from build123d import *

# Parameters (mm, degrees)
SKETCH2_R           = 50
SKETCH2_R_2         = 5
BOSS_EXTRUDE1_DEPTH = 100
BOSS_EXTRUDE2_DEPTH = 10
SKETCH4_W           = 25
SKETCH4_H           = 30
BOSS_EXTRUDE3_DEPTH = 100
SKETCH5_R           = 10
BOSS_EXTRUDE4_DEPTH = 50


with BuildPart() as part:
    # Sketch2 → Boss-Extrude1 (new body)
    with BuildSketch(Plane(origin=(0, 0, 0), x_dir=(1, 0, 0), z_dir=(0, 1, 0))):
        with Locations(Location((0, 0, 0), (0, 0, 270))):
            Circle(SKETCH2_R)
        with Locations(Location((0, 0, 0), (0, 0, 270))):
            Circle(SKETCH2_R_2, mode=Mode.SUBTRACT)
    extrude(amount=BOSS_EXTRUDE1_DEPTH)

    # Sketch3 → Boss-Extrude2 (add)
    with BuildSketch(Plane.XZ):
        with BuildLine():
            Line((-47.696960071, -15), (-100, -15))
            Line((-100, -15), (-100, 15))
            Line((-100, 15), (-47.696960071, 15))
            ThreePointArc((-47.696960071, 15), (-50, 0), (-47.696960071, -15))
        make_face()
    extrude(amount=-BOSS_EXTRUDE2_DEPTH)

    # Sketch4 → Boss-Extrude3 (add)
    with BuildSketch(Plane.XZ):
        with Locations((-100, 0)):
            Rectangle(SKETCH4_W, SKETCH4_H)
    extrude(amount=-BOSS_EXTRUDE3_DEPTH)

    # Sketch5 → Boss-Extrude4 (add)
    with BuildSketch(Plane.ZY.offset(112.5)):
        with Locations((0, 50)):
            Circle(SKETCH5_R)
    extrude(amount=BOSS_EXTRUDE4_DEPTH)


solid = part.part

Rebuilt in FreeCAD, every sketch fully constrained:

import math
import FreeCAD as App
import Part
import Sketcher
from FreeCAD import Vector
Q = App.Units.Quantity

doc = App.newDocument("Part")
body = doc.addObject("PartDesign::Body", "Body")

sketch1 = body.newObject("Sketcher::SketchObject", "Sketch")
sketch1.AttachmentSupport = (doc.getObject("XZ_Plane"), [""])
sketch1.MapMode = "FlatFace"
sketch1.addGeometry([
    Part.Circle(Vector(0, 0, 0), Vector(0, 0, 1), 50),
    Part.Circle(Vector(0, 0, 0), Vector(0, 0, 1), 5),
], False)
sketch1.addConstraint([
    Sketcher.Constraint("Coincident", 0, 3, -1, 1),
    Sketcher.Constraint("Coincident", 1, 3, -1, 1),
    Sketcher.Constraint("Diameter", 0, Q("100 mm")),
    Sketcher.Constraint("Diameter", 1, Q("10 mm")),
])
pad1 = body.newObject("PartDesign::Pad", "Pad")
pad1.Profile = sketch1
pad1.Length = 100
pad1.Reversed = True

sketch2 = body.newObject("Sketcher::SketchObject", "Sketch001")
sketch2.AttachmentSupport = (doc.getObject("XZ_Plane"), [""])
sketch2.MapMode = "FlatFace"
sketch2.addGeometry([
    Part.LineSegment(Vector(-100, -15, 0), Vector(-48, -15, 0)),
    Part.ArcOfCircle(Part.Circle(Vector(0, 0, 0), Vector(0, 0, 1), 50), math.radians(163), math.radians(197)),
    Part.LineSegment(Vector(-48, 15, 0), Vector(-100, 15, 0)),
    Part.LineSegment(Vector(-100, 15, 0), Vector(-100, -15, 0)),
], False)
sketch2.addConstraint([
    Sketcher.Constraint("Coincident", 0, 2, 1, 2),
    Sketcher.Constraint("Coincident", 1, 1, 2, 1),
    Sketcher.Constraint("Coincident", 2, 2, 3, 1),
    Sketcher.Constraint("Coincident", 3, 2, 0, 1),
    Sketcher.Constraint("Horizontal", 0),
    Sketcher.Constraint("Horizontal", 2),
    Sketcher.Constraint("Vertical", 3),
    Sketcher.Constraint("Coincident", 1, 3, -1, 1),
    Sketcher.Constraint("Vertical", 0, 2, 1, 1),
    Sketcher.Constraint("Radius", 1, Q("50 mm")),
    Sketcher.Constraint("DistanceY", 3, 2, 3, 1, Q("30 mm")),
    Sketcher.Constraint("DistanceX", 2, 2, -1, 1, Q("100 mm")),
])
pad2 = body.newObject("PartDesign::Pad", "Pad001")
pad2.Profile = sketch2
pad2.Length = 10
pad2.Reversed = True

sketch3 = body.newObject("Sketcher::SketchObject", "Sketch002")
sketch3.AttachmentSupport = (doc.getObject("XZ_Plane"), [""])
sketch3.MapMode = "FlatFace"
sketch3.addGeometry([
    Part.LineSegment(Vector(-112, 15, 0), Vector(-112, -15, 0)),
    Part.LineSegment(Vector(-112, -15, 0), Vector(-88, -15, 0)),
    Part.LineSegment(Vector(-88, -15, 0), Vector(-88, 15, 0)),
    Part.LineSegment(Vector(-88, 15, 0), Vector(-112, 15, 0)),
], False)
sketch3.addConstraint([
    Sketcher.Constraint("Coincident", 0, 2, 1, 1),
    Sketcher.Constraint("Coincident", 1, 2, 2, 1),
    Sketcher.Constraint("Coincident", 2, 2, 3, 1),
    Sketcher.Constraint("Coincident", 3, 2, 0, 1),
    Sketcher.Constraint("Vertical", 0),
    Sketcher.Constraint("Horizontal", 1),
    Sketcher.Constraint("Vertical", 2),
    Sketcher.Constraint("Horizontal", 3),
    Sketcher.Constraint("DistanceX", 1, 1, 1, 2, Q("25 mm")),
    Sketcher.Constraint("DistanceY", 0, 2, 0, 1, Q("30 mm")),
    Sketcher.Constraint("DistanceY", 0, 2, -1, 1, Q("15 mm")),
    Sketcher.Constraint("DistanceX", 0, 2, -1, 1, Q("112.5 mm")),
])
pad3 = body.newObject("PartDesign::Pad", "Pad002")
pad3.Profile = sketch3
pad3.Length = 100
pad3.Reversed = True

sketch4 = body.newObject("Sketcher::SketchObject", "Sketch003")
sketch4.AttachmentSupport = (doc.getObject("YZ_Plane"), [""])
sketch4.MapMode = "FlatFace"
sketch4.AttachmentOffset = App.Placement(Vector(0, 0, -112.5), App.Rotation())
sketch4.addGeometry(Part.Circle(Vector(50, 0, 0), Vector(0, 0, 1), 10), False)
sketch4.addConstraint([
    Sketcher.Constraint("PointOnObject", 0, 3, -1),
    Sketcher.Constraint("Diameter", 0, Q("20 mm")),
    Sketcher.Constraint("DistanceX", -1, 1, 0, 3, Q("50 mm")),
])
pad4 = body.newObject("PartDesign::Pad", "Pad003")
pad4.Profile = sketch4
pad4.Length = 50
pad4.Reversed = True

doc.recompute()
